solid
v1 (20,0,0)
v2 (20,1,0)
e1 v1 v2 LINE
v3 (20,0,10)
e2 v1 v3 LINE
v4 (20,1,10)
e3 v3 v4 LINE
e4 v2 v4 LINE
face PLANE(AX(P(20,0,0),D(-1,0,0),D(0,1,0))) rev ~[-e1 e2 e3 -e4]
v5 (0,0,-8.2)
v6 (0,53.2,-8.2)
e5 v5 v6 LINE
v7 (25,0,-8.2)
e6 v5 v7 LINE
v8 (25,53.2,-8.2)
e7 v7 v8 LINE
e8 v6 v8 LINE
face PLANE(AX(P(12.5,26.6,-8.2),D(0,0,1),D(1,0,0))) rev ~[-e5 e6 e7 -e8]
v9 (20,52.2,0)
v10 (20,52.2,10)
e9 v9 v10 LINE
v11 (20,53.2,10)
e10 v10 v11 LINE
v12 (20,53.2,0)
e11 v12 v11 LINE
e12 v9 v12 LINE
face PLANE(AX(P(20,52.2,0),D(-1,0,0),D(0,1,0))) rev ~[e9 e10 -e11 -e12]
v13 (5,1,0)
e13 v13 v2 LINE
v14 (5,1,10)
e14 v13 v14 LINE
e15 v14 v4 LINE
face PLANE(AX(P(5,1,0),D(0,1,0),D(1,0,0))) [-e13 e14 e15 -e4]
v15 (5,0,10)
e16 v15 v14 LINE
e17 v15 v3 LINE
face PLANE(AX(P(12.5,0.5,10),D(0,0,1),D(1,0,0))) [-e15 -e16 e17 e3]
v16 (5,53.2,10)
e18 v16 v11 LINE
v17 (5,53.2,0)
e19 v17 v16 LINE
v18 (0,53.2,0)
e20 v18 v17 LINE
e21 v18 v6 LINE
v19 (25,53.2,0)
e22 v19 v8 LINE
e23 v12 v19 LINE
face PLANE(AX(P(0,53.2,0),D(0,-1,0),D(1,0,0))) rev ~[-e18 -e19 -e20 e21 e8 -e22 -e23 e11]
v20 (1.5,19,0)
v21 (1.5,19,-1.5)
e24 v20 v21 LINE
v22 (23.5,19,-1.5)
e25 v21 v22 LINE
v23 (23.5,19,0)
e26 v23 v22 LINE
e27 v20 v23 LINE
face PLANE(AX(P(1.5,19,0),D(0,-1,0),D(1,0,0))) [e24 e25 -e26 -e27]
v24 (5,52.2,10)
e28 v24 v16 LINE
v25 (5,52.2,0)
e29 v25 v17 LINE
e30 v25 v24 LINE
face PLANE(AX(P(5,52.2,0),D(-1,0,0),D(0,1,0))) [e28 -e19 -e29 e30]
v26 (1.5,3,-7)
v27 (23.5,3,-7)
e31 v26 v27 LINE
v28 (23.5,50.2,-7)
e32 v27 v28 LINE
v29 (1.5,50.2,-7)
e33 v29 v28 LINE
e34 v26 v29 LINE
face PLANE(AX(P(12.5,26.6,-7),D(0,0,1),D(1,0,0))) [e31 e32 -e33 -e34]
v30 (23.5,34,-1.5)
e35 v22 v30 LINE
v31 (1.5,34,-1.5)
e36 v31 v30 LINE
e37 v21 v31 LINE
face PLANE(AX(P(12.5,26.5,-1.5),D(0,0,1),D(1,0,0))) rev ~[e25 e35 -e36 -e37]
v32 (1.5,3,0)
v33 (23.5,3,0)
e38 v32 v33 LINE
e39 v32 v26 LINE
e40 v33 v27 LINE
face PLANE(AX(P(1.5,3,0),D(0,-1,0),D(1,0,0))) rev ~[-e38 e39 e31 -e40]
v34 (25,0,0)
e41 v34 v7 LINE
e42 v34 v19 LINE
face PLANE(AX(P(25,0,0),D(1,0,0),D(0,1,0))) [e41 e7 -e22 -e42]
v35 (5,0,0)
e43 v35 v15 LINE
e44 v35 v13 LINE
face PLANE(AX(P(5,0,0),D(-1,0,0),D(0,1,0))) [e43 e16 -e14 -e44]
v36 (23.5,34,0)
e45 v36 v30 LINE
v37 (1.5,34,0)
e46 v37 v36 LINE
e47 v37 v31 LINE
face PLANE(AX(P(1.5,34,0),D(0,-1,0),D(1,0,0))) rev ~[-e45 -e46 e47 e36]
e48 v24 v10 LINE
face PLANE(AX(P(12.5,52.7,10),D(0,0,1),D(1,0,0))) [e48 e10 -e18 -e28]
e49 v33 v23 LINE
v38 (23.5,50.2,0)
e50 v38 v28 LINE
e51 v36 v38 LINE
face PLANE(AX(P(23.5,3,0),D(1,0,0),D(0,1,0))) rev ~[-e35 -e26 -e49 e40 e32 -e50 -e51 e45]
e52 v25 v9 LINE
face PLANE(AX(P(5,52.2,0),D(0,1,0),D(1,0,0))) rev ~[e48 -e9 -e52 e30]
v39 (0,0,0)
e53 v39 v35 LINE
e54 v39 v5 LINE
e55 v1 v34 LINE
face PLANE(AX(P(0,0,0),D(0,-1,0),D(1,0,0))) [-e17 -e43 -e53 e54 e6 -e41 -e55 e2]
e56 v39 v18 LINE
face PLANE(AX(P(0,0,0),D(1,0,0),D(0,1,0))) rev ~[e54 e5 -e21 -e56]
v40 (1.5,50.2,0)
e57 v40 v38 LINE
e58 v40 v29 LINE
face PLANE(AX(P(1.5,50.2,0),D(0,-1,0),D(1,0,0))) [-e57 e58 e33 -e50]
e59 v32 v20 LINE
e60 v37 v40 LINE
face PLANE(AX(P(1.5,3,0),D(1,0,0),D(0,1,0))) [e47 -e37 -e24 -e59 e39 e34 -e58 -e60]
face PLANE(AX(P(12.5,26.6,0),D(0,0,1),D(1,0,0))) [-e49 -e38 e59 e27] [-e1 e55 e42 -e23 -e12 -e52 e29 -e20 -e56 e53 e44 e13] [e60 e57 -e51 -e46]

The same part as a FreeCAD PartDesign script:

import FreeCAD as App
import Part
import Sketcher
from FreeCAD import Vector
Q = App.Units.Quantity


def add_polygon(sketch, points):
    """Adds a closed chain of lines whose ends are joined by coincident constraints."""
    first, n = sketch.GeometryCount, len(points)
    for a, b in zip(points, points[1:] + points[:1]):
        sketch.addGeometry(Part.LineSegment(App.Vector(*a, 0), App.Vector(*b, 0)), False)
    for i in range(n):
        sketch.addConstraint(Sketcher.Constraint("Coincident", first + i, 2, first + (i + 1) % n, 1))

doc = App.newDocument("Part")
body = doc.addObject("PartDesign::Body", "Body")

sketch1 = body.newObject("Sketcher::SketchObject", "Sketch")
sketch1.AttachmentSupport = (doc.getObject("XY_Plane"), [""])
sketch1.MapMode = "FlatFace"
add_polygon(sketch1, [(0, 53), (0, 0), (25, 0), (25, 53)])
sketch1.addConstraint(Sketcher.Constraint("Vertical", 0))
sketch1.addConstraint(Sketcher.Constraint("Horizontal", 1))
sketch1.addConstraint(Sketcher.Constraint("Vertical", 2))
sketch1.addConstraint(Sketcher.Constraint("Horizontal", 3))
sketch1.addConstraint(Sketcher.Constraint("Coincident", 0, 2, -1, 1))
sketch1.addConstraint(Sketcher.Constraint("DistanceX", 1, 1, 1, 2, Q("25 mm")))
sketch1.addConstraint(Sketcher.Constraint("DistanceY", 0, 2, 0, 1, Q("53.2 mm")))
pad1 = body.newObject("PartDesign::Pad", "Pad")
pad1.Profile = sketch1
pad1.Length = 8.2
pad1.Reversed = True

sketch2 = body.newObject("Sketcher::SketchObject", "Sketch001")
sketch2.AttachmentSupport = (doc.getObject("XY_Plane"), [""])
sketch2.MapMode = "FlatFace"
add_polygon(sketch2, [(5, 53.2), (5, 52.2), (20, 52.2), (20, 53.2)])
add_polygon(sketch2, [(5, 1), (5, 0), (20, 0), (20, 1)])
sketch2.addConstraint(Sketcher.Constraint("Vertical", 0))
sketch2.addConstraint(Sketcher.Constraint("Horizontal", 1))
sketch2.addConstraint(Sketcher.Constraint("Vertical", 2))
sketch2.addConstraint(Sketcher.Constraint("Horizontal", 3))
sketch2.addConstraint(Sketcher.Constraint("Vertical", 4))
sketch2.addConstraint(Sketcher.Constraint("Horizontal", 5))
sketch2.addConstraint(Sketcher.Constraint("Vertical", 6))
sketch2.addConstraint(Sketcher.Constraint("Horizontal", 7))
sketch2.addConstraint(Sketcher.Constraint("PointOnObject", 4, 2, -1))
sketch2.addConstraint(Sketcher.Constraint("Vertical", 3, 2, 4, 2))
sketch2.addConstraint(Sketcher.Constraint("Vertical", 2, 2, 5, 2))
sketch2.addConstraint(Sketcher.Constraint("Equal", 2, 4))
sketch2.addConstraint(Sketcher.Constraint("DistanceX", 1, 1, 1, 2, Q("15 mm")))
sketch2.addConstraint(Sketcher.Constraint("DistanceY", 0, 2, 0, 1, Q("1 mm")))
sketch2.addConstraint(Sketcher.Constraint("DistanceX", -1, 1, 0, 2, Q("5 mm")))
sketch2.addConstraint(Sketcher.Constraint("DistanceY", -1, 1, 0, 2, Q("52.2 mm")))
pad2 = body.newObject("PartDesign::Pad", "Pad001")
pad2.Profile = sketch2
pad2.Length = 10

sketch3 = body.newObject("Sketcher::SketchObject", "Sketch002")
sketch3.AttachmentSupport = (doc.getObject("XY_Plane"), [""])
sketch3.MapMode = "FlatFace"
add_polygon(sketch3, [(2, 50), (2, 3), (24, 3), (24, 50)])
sketch3.addConstraint(Sketcher.Constraint("Vertical", 0))
sketch3.addConstraint(Sketcher.Constraint("Horizontal", 1))
sketch3.addConstraint(Sketcher.Constraint("Vertical", 2))
sketch3.addConstraint(Sketcher.Constraint("Horizontal", 3))
sketch3.addConstraint(Sketcher.Constraint("DistanceX", 1, 1, 1, 2, Q("22 mm")))
sketch3.addConstraint(Sketcher.Constraint("DistanceY", 0, 2, 0, 1, Q("47.2 mm")))
sketch3.addConstraint(Sketcher.Constraint("DistanceY", -1, 1, 0, 2, Q("3 mm")))
sketch3.addConstraint(Sketcher.Constraint("DistanceX", -1, 1, 0, 2, Q("1.5 mm")))
pocket1 = body.newObject("PartDesign::Pocket", "Pocket")
pocket1.Profile = sketch3
pocket1.Length = 7

sketch4 = body.newObject("Sketcher::SketchObject", "Sketch003")
sketch4.AttachmentSupport = (doc.getObject("XY_Plane"), [""])
sketch4.MapMode = "FlatFace"
add_polygon(sketch4, [(2, 34), (2, 19), (24, 19), (24, 34)])
sketch4.addConstraint(Sketcher.Constraint("Vertical", 0))
sketch4.addConstraint(Sketcher.Constraint("Horizontal", 1))
sketch4.addConstraint(Sketcher.Constraint("Vertical", 2))
sketch4.addConstraint(Sketcher.Constraint("Horizontal", 3))
sketch4.addConstraint(Sketcher.Constraint("DistanceX", 1, 1, 1, 2, Q("22 mm")))
sketch4.addConstraint(Sketcher.Constraint("DistanceY", 0, 2, 0, 1, Q("15 mm")))
sketch4.addConstraint(Sketcher.Constraint("DistanceY", -1, 1, 0, 2, Q("19 mm")))
sketch4.addConstraint(Sketcher.Constraint("DistanceX", -1, 1, 0, 2, Q("1.5 mm")))
pad3 = body.newObject("PartDesign::Pad", "Pad002")
pad3.Profile = sketch4
pad3.Length = 1.5
pad3.Reversed = True

doc.recompute()
